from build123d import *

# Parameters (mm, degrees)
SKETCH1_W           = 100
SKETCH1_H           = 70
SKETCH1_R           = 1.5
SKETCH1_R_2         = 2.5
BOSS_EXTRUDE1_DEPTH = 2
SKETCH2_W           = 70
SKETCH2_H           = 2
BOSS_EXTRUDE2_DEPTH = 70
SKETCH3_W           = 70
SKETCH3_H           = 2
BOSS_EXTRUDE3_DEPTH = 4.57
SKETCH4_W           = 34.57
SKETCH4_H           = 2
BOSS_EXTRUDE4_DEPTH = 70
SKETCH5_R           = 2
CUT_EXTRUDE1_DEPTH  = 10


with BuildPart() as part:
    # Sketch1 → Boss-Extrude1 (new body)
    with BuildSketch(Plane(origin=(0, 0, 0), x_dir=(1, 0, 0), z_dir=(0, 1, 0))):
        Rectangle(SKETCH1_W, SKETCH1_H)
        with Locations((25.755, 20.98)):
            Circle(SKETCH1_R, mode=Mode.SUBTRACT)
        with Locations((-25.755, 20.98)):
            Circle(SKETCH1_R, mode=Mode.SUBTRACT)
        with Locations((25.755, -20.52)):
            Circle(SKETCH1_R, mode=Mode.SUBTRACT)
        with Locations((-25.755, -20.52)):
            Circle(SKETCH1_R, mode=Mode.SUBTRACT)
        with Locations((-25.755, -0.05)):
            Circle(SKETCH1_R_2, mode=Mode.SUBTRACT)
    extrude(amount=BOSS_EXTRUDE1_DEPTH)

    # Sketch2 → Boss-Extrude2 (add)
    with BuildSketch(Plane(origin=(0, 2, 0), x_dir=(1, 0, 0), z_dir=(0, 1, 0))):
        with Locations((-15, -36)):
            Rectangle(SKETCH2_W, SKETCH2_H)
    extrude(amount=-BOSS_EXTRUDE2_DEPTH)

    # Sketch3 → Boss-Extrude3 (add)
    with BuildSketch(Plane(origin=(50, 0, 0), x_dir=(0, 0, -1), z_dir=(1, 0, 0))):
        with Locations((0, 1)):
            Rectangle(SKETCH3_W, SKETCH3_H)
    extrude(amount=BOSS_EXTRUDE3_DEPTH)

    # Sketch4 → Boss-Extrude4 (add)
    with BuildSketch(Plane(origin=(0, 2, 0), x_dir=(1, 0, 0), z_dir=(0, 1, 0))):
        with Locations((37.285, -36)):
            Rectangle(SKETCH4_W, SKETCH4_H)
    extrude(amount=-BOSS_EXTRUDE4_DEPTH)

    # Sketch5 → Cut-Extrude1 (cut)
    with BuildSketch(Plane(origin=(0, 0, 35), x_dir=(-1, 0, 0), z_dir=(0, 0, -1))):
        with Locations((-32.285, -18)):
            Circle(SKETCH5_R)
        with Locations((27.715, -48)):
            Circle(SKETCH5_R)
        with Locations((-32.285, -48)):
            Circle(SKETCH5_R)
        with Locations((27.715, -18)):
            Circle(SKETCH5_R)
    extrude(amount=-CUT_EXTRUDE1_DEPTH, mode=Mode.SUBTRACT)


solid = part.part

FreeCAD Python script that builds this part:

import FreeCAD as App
import Part
import Sketcher
from FreeCAD import Vector
Q = App.Units.Quantity

doc = App.newDocument("Part")
body = doc.addObject("PartDesign::Body", "Body")

# Sketch on XZ plane
sketch1 = doc.addObject("Sketcher::SketchObject", "Sketch")
body.addObject(sketch1)
sketch1.AttachmentSupport = (doc.XZ_Plane, [""])
sketch1.MapMode = "FlatFace"
sketch1.addGeometry([
    Part.LineSegment(Vector(-50, -35, 0), Vector(-50, 35, 0)),  # 0
    Part.LineSegment(Vector(-50, 35, 0), Vector(50, 35, 0)),  # 1
    Part.LineSegment(Vector(50, 35, 0), Vector(50, -35, 0)),  # 2
    Part.LineSegment(Vector(50, -35, 0), Vector(-50, -35, 0)),  # 3
    Part.Circle(Vector(-25.755, 20.52, 0), Vector(0, 0, 1), 1.5),  # 4
    Part.Circle(Vector(-25.755, 0.05, 0), Vector(0, 0, 1), 2.5),  # 5
    Part.Circle(Vector(25.755, 20.52, 0), Vector(0, 0, 1), 1.5),  # 6
    Part.Circle(Vector(-25.755, -20.98, 0), Vector(0, 0, 1), 1.5),  # 7
    Part.Circle(Vector(25.755, -20.98, 0), Vector(0, 0, 1), 1.5),  # 8
], False)
sketch1.addConstraint([
    Sketcher.Constraint("Coincident", 0, 2, 1, 1),
    Sketcher.Constraint("Coincident", 1, 2, 2, 1),
    Sketcher.Constraint("Coincident", 2, 2, 3, 1),
    Sketcher.Constraint("Coincident", 3, 2, 0, 1),
    Sketcher.Constraint("Vertical", 0),
    Sketcher.Constraint("Horizontal", 1),
    Sketcher.Constraint("Vertical", 2),
    Sketcher.Constraint("Horizontal", 3),
    Sketcher.Constraint("Equal", 4, 6),
    Sketcher.Constraint("Equal", 6, 7),
    Sketcher.Constraint("Equal", 7, 8),
    Sketcher.Constraint("Symmetric", 0, 2, 2, 2, -1, 1),
    Sketcher.Constraint("Symmetric", 4, 3, 6, 3, -2),
    Sketcher.Constraint("Symmetric", 7, 3, 8, 3, -2),
    Sketcher.Constraint("Vertical", 4, 3, 5, 3),
    Sketcher.Constraint("Vertical", 5, 3, 7, 3),
    Sketcher.Constraint("Diameter", 4, Q("3 mm")),
    Sketcher.Constraint("Diameter", 5, Q("5 mm")),
    Sketcher.Constraint("DistanceX", 1, 1, 1, 2, Q("100 mm")),
    Sketcher.Constraint("DistanceY", 0, 1, 0, 2, Q("70 mm")),
    Sketcher.Constraint("DistanceY", 7, 3, 4, 3, Q("41.5 mm")),
    Sketcher.Constraint("DistanceY", -1, 1, 4, 3, Q("20.52 mm")),
    Sketcher.Constraint("DistanceY", -1, 1, 5, 3, Q("0.05 mm")),
    Sketcher.Constraint("DistanceX", 4, 3, 6, 3, Q("51.51 mm")),
])
pad1 = doc.addObject("PartDesign::Pad", "Pad")
body.addObject(pad1)
pad1.Profile = sketch1
pad1.Length = 2
pad1.Reversed = True

# Sketch on XZ plane
sketch2 = doc.addObject("Sketcher::SketchObject", "Sketch001")
body.addObject(sketch2)
sketch2.AttachmentSupport = (doc.XZ_Plane, [""])
sketch2.MapMode = "FlatFace"
sketch2.AttachmentOffset = App.Placement(Vector(0, 0, -2), App.Rotation())
sketch2.addGeometry([
    Part.LineSegment(Vector(-50, 35, 0), Vector(-50, 37, 0)),
    Part.LineSegment(Vector(-50, 37, 0), Vector(20, 37, 0)),
    Part.LineSegment(Vector(20, 37, 0), Vector(20, 35, 0)),
    Part.LineSegment(Vector(20, 35, 0), Vector(-50, 35, 0)),
], False)
sketch2.addConstraint([
    Sketcher.Constraint("Coincident", 0, 2, 1, 1),
    Sketcher.Constraint("Coincident", 1, 2, 2, 1),
    Sketcher.Constraint("Coincident", 2, 2, 3, 1),
    Sketcher.Constraint("Coincident", 3, 2, 0, 1),
    Sketcher.Constraint("Vertical", 0),
    Sketcher.Constraint("Horizontal", 1),
    Sketcher.Constraint("Vertical", 2),
    Sketcher.Constraint("Horizontal", 3),
    Sketcher.Constraint("DistanceX", 1, 1, 1, 2, Q("70 mm")),
    Sketcher.Constraint("DistanceY", 0, 1, 0, 2, Q("2 mm")),
    Sketcher.Constraint("DistanceX", 0, 2, -1, 1, Q("50 mm")),
    Sketcher.Constraint("DistanceY", -1, 1, 0, 2, Q("37 mm")),
])
pad2 = doc.addObject("PartDesign::Pad", "Pad001")
body.addObject(pad2)
pad2.Profile = sketch2
pad2.Length = 70

# Sketch on YZ plane
sketch3 = doc.addObject("Sketcher::SketchObject", "Sketch002")
body.addObject(sketch3)
sketch3.AttachmentSupport = (doc.YZ_Plane, [""])
sketch3.MapMode = "FlatFace"
sketch3.AttachmentOffset = App.Placement(Vector(0, 0, 50), App.Rotation())
sketch3.addGeometry([
    Part.LineSegment(Vector(2, 35, 0), Vector(0, 35, 0)),
    Part.LineSegment(Vector(0, 35, 0), Vector(0, -35, 0)),
    Part.LineSegment(Vector(0, -35, 0), Vector(2, -35, 0)),
    Part.LineSegment(Vector(2, -35, 0), Vector(2, 35, 0)),
], False)
sketch3.addConstraint([
    Sketcher.Constraint("Coincident", 0, 2, 1, 1),
    Sketcher.Constraint("Coincident", 1, 2, 2, 1),
    Sketcher.Constraint("Coincident", 2, 2, 3, 1),
    Sketcher.Constraint("Coincident", 3, 2, 0, 1),
    Sketcher.Constraint("Horizontal", 0),
    Sketcher.Constraint("Vertical", 1),
    Sketcher.Constraint("Horizontal", 2),
    Sketcher.Constraint("Vertical", 3),
    Sketcher.Constraint("Symmetric", 0, 2, 1, 2, -1, 1),
    Sketcher.Constraint("DistanceX", 0, 2, 0, 1, Q("2 mm")),
    Sketcher.Constraint("DistanceY", 1, 2, 1, 1, Q("70 mm")),
])
pad3 = doc.addObject("PartDesign::Pad", "Pad002")
body.addObject(pad3)
pad3.Profile = sketch3
pad3.Length = 4.57

# Sketch on XZ plane
sketch4 = doc.addObject("Sketcher::SketchObject", "Sketch003")
body.addObject(sketch4)
sketch4.AttachmentSupport = (doc.XZ_Plane, [""])
sketch4.MapMode = "FlatFace"
sketch4.AttachmentOffset = App.Placement(Vector(0, 0, -2), App.Rotation())
sketch4.addGeometry([
    Part.LineSegment(Vector(20, 35, 0), Vector(20, 37, 0)),
    Part.LineSegment(Vector(20, 37, 0), Vector(54.57, 37, 0)),
    Part.LineSegment(Vector(54.57, 37, 0), Vector(54.57, 35, 0)),
    Part.LineSegment(Vector(54.57, 35, 0), Vector(20, 35, 0)),
], False)
sketch4.addConstraint([
    Sketcher.Constraint("Coincident", 0, 2, 1, 1),
    Sketcher.Constraint("Coincident", 1, 2, 2, 1),
    Sketcher.Constraint("Coincident", 2, 2, 3, 1),
    Sketcher.Constraint("Coincident", 3, 2, 0, 1),
    Sketcher.Constraint("Vertical", 0),
    Sketcher.Constraint("Horizontal", 1),
    Sketcher.Constraint("Vertical", 2),
    Sketcher.Constraint("Horizontal", 3),
    Sketcher.Constraint("DistanceY", 0, 1, 0, 2, Q("2 mm")),
    Sketcher.Constraint("DistanceX", -1, 1, 0, 2, Q("20 mm")),
    Sketcher.Constraint("DistanceY", -1, 1, 0, 2, Q("37 mm")),
    Sketcher.Constraint("DistanceX", 1, 1, 1, 2, Q("34.57 mm")),
])
pad4 = doc.addObject("PartDesign::Pad", "Pad003")
body.addObject(pad4)
pad4.Profile = sketch4
pad4.Length = 70

# Sketch on XY plane
sketch5 = doc.addObject("Sketcher::SketchObject", "Sketch004")
body.addObject(sketch5)
sketch5.AttachmentSupport = (doc.XY_Plane, [""])
sketch5.MapMode = "FlatFace"
sketch5.AttachmentOffset = App.Placement(Vector(0, 0, 35), App.Rotation())
sketch5.addGeometry([
    Part.Circle(Vector(32.285, -18, 0), Vector(0, 0, 1), 2),
    Part.Circle(Vector(-27.715, -48, 0), Vector(0, 0, 1), 2),
    Part.Circle(Vector(32.285, -48, 0), Vector(0, 0, 1), 2),
    Part.Circle(Vector(-27.715, -18, 0), Vector(0, 0, 1), 2),
], False)
sketch5.addConstraint([
    Sketcher.Constraint("Equal", 0, 1),
    Sketcher.Constraint("Equal", 1, 2),
    Sketcher.Constraint("Equal", 2, 3),
    Sketcher.Constraint("Horizontal", 1, 3, 2, 3),
    Sketcher.Constraint("Horizontal", 0, 3, 3, 3),
    Sketcher.Constraint("Vertical", 0, 3, 2, 3),
    Sketcher.Constraint("Vertical", 1, 3, 3, 3),
    Sketcher.Constraint("Diameter", 0, Q("4 mm")),
    Sketcher.Constraint("DistanceY", 0, 3, -1, 1, Q("18 mm")),
    Sketcher.Constraint("DistanceY", 1, 3, -1, 1, Q("48 mm")),
    Sketcher.Constraint("DistanceX", 1, 3, 0, 3, Q("60 mm")),
    Sketcher.Constraint("DistanceX", -1, 1, 0, 3, Q("32.285 mm")),
])
pocket1 = doc.addObject("PartDesign::Pocket", "Pocket")
body.addObject(pocket1)
pocket1.Profile = sketch5
pocket1.Length = 10
pocket1.Reversed = True

doc.recompute()
